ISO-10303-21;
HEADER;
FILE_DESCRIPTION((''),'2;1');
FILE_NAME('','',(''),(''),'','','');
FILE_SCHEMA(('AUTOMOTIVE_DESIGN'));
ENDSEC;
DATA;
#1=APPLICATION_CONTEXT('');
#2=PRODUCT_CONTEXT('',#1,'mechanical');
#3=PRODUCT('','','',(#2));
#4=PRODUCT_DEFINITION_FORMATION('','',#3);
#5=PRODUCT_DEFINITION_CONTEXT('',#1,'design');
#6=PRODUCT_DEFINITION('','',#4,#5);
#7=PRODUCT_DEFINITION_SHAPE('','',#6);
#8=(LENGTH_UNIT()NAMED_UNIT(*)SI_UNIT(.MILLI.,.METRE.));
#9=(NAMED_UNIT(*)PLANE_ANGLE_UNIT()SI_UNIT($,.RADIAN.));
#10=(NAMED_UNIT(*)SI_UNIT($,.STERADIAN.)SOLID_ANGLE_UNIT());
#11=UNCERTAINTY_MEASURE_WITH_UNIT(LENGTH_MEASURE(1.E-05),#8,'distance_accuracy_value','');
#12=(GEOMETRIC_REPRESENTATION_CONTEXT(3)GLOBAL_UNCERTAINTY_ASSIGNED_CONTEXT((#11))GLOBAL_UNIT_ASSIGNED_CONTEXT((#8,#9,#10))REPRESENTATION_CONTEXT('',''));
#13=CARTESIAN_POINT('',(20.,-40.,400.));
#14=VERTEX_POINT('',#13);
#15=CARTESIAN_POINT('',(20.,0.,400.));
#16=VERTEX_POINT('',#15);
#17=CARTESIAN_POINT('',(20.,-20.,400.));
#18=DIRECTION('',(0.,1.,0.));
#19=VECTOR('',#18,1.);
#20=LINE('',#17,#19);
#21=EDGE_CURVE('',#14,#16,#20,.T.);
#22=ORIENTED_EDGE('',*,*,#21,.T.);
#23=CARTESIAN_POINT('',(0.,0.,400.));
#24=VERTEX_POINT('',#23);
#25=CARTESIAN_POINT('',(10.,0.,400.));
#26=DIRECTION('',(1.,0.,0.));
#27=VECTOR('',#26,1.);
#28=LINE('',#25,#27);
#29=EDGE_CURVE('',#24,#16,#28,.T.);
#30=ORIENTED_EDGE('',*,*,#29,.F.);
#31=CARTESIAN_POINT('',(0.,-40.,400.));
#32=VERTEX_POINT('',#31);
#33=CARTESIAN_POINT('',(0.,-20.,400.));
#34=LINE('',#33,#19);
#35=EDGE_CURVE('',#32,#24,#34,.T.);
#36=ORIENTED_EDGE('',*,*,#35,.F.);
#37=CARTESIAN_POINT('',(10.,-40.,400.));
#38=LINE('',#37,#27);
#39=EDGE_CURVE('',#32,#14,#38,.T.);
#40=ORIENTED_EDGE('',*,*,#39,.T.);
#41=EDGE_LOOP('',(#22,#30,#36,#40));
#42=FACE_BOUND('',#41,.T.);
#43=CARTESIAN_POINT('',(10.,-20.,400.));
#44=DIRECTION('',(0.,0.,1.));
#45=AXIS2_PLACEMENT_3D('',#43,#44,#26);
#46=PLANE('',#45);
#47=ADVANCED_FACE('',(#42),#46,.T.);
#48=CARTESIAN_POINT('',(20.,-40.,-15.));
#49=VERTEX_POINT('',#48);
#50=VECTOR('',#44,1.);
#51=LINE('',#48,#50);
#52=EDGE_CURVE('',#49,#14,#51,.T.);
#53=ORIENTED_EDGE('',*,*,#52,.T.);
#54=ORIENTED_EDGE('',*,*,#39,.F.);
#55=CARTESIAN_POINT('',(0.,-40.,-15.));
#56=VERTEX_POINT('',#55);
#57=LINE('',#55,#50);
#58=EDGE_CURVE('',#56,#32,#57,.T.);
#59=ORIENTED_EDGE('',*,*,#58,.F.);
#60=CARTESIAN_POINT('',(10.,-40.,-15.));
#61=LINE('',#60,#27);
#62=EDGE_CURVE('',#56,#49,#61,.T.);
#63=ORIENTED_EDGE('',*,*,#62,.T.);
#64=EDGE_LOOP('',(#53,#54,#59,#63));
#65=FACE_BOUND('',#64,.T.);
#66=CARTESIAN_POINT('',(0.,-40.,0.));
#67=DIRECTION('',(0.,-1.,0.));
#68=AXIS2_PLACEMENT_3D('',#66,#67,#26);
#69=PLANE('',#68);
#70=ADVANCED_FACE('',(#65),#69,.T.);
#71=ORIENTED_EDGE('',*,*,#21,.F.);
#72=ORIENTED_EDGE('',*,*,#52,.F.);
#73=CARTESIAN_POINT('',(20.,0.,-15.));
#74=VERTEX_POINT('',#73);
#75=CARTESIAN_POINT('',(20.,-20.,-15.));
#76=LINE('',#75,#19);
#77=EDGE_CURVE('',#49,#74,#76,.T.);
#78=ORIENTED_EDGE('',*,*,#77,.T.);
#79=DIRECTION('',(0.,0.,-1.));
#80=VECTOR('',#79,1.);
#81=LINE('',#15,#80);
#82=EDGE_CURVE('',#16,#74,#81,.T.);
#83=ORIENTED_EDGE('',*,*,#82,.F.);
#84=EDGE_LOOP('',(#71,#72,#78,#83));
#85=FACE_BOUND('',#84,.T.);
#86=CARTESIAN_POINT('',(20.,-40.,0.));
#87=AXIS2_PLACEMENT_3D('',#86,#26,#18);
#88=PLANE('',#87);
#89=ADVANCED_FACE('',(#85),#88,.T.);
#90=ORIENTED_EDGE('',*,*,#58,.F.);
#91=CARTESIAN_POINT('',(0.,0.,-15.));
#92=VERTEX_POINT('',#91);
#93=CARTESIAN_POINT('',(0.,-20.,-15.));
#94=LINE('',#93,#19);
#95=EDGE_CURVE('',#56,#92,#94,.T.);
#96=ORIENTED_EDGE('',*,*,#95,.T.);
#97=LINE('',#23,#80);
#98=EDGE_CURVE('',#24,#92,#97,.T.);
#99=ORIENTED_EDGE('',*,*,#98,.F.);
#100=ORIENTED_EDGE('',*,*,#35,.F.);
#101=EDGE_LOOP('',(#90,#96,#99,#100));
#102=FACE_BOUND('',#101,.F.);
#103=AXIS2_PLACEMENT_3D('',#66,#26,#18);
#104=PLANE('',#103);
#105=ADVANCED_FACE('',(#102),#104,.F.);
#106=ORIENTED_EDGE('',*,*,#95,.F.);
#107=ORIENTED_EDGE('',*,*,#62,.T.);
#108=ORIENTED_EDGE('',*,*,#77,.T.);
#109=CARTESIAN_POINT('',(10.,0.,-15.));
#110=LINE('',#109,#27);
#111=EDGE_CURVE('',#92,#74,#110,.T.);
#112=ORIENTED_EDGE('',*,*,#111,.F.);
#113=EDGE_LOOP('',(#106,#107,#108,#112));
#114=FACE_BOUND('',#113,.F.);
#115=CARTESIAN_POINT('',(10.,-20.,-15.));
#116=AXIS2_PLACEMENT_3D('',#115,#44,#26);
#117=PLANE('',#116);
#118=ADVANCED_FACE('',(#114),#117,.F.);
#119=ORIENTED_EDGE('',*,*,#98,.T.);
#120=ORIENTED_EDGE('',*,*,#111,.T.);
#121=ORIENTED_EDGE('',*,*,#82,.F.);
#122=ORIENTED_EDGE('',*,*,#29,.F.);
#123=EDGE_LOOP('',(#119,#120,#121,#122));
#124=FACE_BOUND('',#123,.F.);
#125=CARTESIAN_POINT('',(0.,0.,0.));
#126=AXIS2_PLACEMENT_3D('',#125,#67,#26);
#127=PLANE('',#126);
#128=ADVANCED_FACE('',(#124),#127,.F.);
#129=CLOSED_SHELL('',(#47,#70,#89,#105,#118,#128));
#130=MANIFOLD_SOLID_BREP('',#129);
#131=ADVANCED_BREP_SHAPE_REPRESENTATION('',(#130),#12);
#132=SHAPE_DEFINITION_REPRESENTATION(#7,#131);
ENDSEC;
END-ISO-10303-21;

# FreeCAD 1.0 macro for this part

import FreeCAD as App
import Part
import Sketcher

V = App.Vector


def add_polygon(sketch, points):
    """Adds a closed chain of lines whose ends are joined by coincident constraints."""
    first, n = sketch.GeometryCount, len(points)
    for a, b in zip(points, points[1:] + points[:1]):
        sketch.addGeometry(Part.LineSegment(App.Vector(*a, 0), App.Vector(*b, 0)), False)
    for i in range(n):
        sketch.addConstraint(Sketcher.Constraint("Coincident", first + i, 2, first + (i + 1) % n, 1))

doc = App.newDocument("Part")
body = doc.addObject("PartDesign::Body", "Body")

sketch1 = doc.addObject("Sketcher::SketchObject", "Sketch")
body.addObject(sketch1)
sketch1.AttachmentSupport = (doc.XY_Plane, [""])
sketch1.MapMode = "FlatFace"
add_polygon(sketch1, [(0, 0), (0, -40), (20, -40), (20, 0)])
sketch1.addConstraint(Sketcher.Constraint("Vertical", 0))
sketch1.addConstraint(Sketcher.Constraint("Horizontal", 1))
sketch1.addConstraint(Sketcher.Constraint("Vertical", 2))
sketch1.addConstraint(Sketcher.Constraint("Horizontal", 3))
sketch1.addConstraint(Sketcher.Constraint("Coincident", 3, 2, -1, 1))
sketch1.addConstraint(Sketcher.Constraint("DistanceX", 1, 1, 1, 2, 20.0))
sketch1.addConstraint(Sketcher.Constraint("DistanceY", 0, 2, 0, 1, 40.0))
pad1 = doc.addObject("PartDesign::Pad", "Pad")
body.addObject(pad1)
pad1.Profile = sketch1
pad1.Length = 400

sketch2 = doc.addObject("Sketcher::SketchObject", "Sketch001")
body.addObject(sketch2)
sketch2.AttachmentSupport = (doc.XY_Plane, [""])
sketch2.MapMode = "FlatFace"
add_polygon(sketch2, [(0, 0), (0, -40), (20, -40), (20, 0)])
sketch2.addConstraint(Sketcher.Constraint("Vertical", 0))
sketch2.addConstraint(Sketcher.Constraint("Horizontal", 1))
sketch2.addConstraint(Sketcher.Constraint("Vertical", 2))
sketch2.addConstraint(Sketcher.Constraint("Horizontal", 3))
sketch2.addConstraint(Sketcher.Constraint("Coincident", 3, 2, -1, 1))
sketch2.addConstraint(Sketcher.Constraint("DistanceX", 1, 1, 1, 2, 20.0))
sketch2.addConstraint(Sketcher.Constraint("DistanceY", 0, 2, 0, 1, 40.0))
pad2 = doc.addObject("PartDesign::Pad", "Pad001")
body.addObject(pad2)
pad2.Profile = sketch2
pad2.Length = 15
pad2.Reversed = True

doc.recompute()
